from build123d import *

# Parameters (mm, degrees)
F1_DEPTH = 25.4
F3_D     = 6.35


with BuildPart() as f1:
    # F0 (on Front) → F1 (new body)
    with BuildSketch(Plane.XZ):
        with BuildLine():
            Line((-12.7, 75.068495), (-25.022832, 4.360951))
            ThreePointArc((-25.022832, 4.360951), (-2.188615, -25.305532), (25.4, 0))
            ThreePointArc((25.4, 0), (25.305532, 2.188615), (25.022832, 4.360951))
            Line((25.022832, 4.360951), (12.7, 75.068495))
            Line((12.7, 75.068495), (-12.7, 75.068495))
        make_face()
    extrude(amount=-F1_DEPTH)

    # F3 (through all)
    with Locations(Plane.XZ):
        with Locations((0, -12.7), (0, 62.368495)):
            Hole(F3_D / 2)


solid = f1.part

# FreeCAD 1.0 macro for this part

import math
import FreeCAD as App
import Part
import Sketcher
from FreeCAD import Vector
Q = App.Units.Quantity

doc = App.newDocument("Part")
body = doc.addObject("PartDesign::Body", "Body")

# Sketch on XZ plane
sketch1 = doc.addObject("Sketcher::SketchObject", "Sketch")
body.addObject(sketch1)
sketch1.AttachmentSupport = (doc.XZ_Plane, [""])
sketch1.MapMode = "FlatFace"
sketch1.addGeometry(Part.LineSegment(Vector(-12.7, 75.068495, 0), Vector(-25.022832, 4.360951, 0)), False)
sketch1.addGeometry(Part.ArcOfCircle(Part.Circle(Vector(0, 0, 0), Vector(0, 0, 1), 25.4), math.radians(170.11385), math.radians(359.999999)), False)
sketch1.addGeometry(Part.ArcOfCircle(Part.Circle(Vector(-0.000116, -0.000008, 0), Vector(0, 0, 1), 25.400116), math.radians(0.000019), math.radians(9.886124)), False)
sketch1.addGeometry(Part.LineSegment(Vector(25.022832, 4.360951, 0), Vector(12.7, 75.068495, 0)), False)
sketch1.addGeometry(Part.LineSegment(Vector(12.7, 75.068495, 0), Vector(-12.7, 75.068495, 0)), False)
sketch1.addConstraint(Sketcher.Constraint("Coincident", 0, 2, 1, 1))
sketch1.addConstraint(Sketcher.Constraint("Coincident", 1, 2, 2, 1))
sketch1.addConstraint(Sketcher.Constraint("Coincident", 2, 2, 3, 1))
sketch1.addConstraint(Sketcher.Constraint("Coincident", 3, 2, 4, 1))
sketch1.addConstraint(Sketcher.Constraint("Coincident", 4, 2, 0, 1))
sketch1.addConstraint(Sketcher.Constraint("Horizontal", 4))
sketch1.addConstraint(Sketcher.Constraint("Coincident", 1, 3, -1, 1))
sketch1.addConstraint(Sketcher.Constraint("PointOnObject", 1, 2, -1))
sketch1.addConstraint(Sketcher.Constraint("Radius", 1, Q("1 in")))
sketch1.addConstraint(Sketcher.Constraint("DistanceX", 4, 2, 4, 1, Q("1 in")))
sketch1.addConstraint(Sketcher.Constraint("DistanceX", -1, 1, 3, 2, Q("0.5 in")))
sketch1.addConstraint(Sketcher.Constraint("Radius", 2, Q("25.400116 mm")))
sketch1.addConstraint(Sketcher.Constraint("DistanceY", -1, 1, 0, 2, Q("4.360951 mm")))
sketch1.addConstraint(Sketcher.Constraint("DistanceX", -1, 1, 2, 2, Q("25.022832 mm")))
sketch1.addConstraint(Sketcher.Constraint("DistanceY", -1, 1, 2, 2, Q("4.360951 mm")))
sketch1.addConstraint(Sketcher.Constraint("Distance", 0, Q("71.773317 mm")))
pad1 = doc.addObject("PartDesign::Pad", "Pad")
body.addObject(pad1)
pad1.Profile = sketch1
pad1.Length = Q("1 in")
pad1.Reversed = True

# Sketch on XZ plane
sketch2 = doc.addObject("Sketcher::SketchObject", "Sketch001")
body.addObject(sketch2)
sketch2.AttachmentSupport = (doc.XZ_Plane, [""])
sketch2.MapMode = "FlatFace"
sketch2.addGeometry(Part.Circle(Vector(0, -12.7, 0), Vector(0, 0, 1), 3.175), False)
sketch2.addGeometry(Part.Circle(Vector(0, 62.368495, 0), Vector(0, 0, 1), 3.175), False)
sketch2.addConstraint(Sketcher.Constraint("Equal", 0, 1))
sketch2.addConstraint(Sketcher.Constraint("PointOnObject", 0, 3, -2))
sketch2.addConstraint(Sketcher.Constraint("PointOnObject", 1, 3, -2))
sketch2.addConstraint(Sketcher.Constraint("Diameter", 0, Q("0.25 in")))
sketch2.addConstraint(Sketcher.Constraint("DistanceY", 0, 3, -1, 1, Q("0.5 in")))
sketch2.addConstraint(Sketcher.Constraint("DistanceY", -1, 1, 1, 3, Q("62.368495 mm")))
doc.recompute()
hole = doc.addObject("PartDesign::Hole", "Hole")
body.addObject(hole)
hole.Profile = sketch2
hole.ThreadType = "None"
hole.Diameter = Q("0.25 in")
hole.DepthType = "ThroughAll"

doc.recompute()
